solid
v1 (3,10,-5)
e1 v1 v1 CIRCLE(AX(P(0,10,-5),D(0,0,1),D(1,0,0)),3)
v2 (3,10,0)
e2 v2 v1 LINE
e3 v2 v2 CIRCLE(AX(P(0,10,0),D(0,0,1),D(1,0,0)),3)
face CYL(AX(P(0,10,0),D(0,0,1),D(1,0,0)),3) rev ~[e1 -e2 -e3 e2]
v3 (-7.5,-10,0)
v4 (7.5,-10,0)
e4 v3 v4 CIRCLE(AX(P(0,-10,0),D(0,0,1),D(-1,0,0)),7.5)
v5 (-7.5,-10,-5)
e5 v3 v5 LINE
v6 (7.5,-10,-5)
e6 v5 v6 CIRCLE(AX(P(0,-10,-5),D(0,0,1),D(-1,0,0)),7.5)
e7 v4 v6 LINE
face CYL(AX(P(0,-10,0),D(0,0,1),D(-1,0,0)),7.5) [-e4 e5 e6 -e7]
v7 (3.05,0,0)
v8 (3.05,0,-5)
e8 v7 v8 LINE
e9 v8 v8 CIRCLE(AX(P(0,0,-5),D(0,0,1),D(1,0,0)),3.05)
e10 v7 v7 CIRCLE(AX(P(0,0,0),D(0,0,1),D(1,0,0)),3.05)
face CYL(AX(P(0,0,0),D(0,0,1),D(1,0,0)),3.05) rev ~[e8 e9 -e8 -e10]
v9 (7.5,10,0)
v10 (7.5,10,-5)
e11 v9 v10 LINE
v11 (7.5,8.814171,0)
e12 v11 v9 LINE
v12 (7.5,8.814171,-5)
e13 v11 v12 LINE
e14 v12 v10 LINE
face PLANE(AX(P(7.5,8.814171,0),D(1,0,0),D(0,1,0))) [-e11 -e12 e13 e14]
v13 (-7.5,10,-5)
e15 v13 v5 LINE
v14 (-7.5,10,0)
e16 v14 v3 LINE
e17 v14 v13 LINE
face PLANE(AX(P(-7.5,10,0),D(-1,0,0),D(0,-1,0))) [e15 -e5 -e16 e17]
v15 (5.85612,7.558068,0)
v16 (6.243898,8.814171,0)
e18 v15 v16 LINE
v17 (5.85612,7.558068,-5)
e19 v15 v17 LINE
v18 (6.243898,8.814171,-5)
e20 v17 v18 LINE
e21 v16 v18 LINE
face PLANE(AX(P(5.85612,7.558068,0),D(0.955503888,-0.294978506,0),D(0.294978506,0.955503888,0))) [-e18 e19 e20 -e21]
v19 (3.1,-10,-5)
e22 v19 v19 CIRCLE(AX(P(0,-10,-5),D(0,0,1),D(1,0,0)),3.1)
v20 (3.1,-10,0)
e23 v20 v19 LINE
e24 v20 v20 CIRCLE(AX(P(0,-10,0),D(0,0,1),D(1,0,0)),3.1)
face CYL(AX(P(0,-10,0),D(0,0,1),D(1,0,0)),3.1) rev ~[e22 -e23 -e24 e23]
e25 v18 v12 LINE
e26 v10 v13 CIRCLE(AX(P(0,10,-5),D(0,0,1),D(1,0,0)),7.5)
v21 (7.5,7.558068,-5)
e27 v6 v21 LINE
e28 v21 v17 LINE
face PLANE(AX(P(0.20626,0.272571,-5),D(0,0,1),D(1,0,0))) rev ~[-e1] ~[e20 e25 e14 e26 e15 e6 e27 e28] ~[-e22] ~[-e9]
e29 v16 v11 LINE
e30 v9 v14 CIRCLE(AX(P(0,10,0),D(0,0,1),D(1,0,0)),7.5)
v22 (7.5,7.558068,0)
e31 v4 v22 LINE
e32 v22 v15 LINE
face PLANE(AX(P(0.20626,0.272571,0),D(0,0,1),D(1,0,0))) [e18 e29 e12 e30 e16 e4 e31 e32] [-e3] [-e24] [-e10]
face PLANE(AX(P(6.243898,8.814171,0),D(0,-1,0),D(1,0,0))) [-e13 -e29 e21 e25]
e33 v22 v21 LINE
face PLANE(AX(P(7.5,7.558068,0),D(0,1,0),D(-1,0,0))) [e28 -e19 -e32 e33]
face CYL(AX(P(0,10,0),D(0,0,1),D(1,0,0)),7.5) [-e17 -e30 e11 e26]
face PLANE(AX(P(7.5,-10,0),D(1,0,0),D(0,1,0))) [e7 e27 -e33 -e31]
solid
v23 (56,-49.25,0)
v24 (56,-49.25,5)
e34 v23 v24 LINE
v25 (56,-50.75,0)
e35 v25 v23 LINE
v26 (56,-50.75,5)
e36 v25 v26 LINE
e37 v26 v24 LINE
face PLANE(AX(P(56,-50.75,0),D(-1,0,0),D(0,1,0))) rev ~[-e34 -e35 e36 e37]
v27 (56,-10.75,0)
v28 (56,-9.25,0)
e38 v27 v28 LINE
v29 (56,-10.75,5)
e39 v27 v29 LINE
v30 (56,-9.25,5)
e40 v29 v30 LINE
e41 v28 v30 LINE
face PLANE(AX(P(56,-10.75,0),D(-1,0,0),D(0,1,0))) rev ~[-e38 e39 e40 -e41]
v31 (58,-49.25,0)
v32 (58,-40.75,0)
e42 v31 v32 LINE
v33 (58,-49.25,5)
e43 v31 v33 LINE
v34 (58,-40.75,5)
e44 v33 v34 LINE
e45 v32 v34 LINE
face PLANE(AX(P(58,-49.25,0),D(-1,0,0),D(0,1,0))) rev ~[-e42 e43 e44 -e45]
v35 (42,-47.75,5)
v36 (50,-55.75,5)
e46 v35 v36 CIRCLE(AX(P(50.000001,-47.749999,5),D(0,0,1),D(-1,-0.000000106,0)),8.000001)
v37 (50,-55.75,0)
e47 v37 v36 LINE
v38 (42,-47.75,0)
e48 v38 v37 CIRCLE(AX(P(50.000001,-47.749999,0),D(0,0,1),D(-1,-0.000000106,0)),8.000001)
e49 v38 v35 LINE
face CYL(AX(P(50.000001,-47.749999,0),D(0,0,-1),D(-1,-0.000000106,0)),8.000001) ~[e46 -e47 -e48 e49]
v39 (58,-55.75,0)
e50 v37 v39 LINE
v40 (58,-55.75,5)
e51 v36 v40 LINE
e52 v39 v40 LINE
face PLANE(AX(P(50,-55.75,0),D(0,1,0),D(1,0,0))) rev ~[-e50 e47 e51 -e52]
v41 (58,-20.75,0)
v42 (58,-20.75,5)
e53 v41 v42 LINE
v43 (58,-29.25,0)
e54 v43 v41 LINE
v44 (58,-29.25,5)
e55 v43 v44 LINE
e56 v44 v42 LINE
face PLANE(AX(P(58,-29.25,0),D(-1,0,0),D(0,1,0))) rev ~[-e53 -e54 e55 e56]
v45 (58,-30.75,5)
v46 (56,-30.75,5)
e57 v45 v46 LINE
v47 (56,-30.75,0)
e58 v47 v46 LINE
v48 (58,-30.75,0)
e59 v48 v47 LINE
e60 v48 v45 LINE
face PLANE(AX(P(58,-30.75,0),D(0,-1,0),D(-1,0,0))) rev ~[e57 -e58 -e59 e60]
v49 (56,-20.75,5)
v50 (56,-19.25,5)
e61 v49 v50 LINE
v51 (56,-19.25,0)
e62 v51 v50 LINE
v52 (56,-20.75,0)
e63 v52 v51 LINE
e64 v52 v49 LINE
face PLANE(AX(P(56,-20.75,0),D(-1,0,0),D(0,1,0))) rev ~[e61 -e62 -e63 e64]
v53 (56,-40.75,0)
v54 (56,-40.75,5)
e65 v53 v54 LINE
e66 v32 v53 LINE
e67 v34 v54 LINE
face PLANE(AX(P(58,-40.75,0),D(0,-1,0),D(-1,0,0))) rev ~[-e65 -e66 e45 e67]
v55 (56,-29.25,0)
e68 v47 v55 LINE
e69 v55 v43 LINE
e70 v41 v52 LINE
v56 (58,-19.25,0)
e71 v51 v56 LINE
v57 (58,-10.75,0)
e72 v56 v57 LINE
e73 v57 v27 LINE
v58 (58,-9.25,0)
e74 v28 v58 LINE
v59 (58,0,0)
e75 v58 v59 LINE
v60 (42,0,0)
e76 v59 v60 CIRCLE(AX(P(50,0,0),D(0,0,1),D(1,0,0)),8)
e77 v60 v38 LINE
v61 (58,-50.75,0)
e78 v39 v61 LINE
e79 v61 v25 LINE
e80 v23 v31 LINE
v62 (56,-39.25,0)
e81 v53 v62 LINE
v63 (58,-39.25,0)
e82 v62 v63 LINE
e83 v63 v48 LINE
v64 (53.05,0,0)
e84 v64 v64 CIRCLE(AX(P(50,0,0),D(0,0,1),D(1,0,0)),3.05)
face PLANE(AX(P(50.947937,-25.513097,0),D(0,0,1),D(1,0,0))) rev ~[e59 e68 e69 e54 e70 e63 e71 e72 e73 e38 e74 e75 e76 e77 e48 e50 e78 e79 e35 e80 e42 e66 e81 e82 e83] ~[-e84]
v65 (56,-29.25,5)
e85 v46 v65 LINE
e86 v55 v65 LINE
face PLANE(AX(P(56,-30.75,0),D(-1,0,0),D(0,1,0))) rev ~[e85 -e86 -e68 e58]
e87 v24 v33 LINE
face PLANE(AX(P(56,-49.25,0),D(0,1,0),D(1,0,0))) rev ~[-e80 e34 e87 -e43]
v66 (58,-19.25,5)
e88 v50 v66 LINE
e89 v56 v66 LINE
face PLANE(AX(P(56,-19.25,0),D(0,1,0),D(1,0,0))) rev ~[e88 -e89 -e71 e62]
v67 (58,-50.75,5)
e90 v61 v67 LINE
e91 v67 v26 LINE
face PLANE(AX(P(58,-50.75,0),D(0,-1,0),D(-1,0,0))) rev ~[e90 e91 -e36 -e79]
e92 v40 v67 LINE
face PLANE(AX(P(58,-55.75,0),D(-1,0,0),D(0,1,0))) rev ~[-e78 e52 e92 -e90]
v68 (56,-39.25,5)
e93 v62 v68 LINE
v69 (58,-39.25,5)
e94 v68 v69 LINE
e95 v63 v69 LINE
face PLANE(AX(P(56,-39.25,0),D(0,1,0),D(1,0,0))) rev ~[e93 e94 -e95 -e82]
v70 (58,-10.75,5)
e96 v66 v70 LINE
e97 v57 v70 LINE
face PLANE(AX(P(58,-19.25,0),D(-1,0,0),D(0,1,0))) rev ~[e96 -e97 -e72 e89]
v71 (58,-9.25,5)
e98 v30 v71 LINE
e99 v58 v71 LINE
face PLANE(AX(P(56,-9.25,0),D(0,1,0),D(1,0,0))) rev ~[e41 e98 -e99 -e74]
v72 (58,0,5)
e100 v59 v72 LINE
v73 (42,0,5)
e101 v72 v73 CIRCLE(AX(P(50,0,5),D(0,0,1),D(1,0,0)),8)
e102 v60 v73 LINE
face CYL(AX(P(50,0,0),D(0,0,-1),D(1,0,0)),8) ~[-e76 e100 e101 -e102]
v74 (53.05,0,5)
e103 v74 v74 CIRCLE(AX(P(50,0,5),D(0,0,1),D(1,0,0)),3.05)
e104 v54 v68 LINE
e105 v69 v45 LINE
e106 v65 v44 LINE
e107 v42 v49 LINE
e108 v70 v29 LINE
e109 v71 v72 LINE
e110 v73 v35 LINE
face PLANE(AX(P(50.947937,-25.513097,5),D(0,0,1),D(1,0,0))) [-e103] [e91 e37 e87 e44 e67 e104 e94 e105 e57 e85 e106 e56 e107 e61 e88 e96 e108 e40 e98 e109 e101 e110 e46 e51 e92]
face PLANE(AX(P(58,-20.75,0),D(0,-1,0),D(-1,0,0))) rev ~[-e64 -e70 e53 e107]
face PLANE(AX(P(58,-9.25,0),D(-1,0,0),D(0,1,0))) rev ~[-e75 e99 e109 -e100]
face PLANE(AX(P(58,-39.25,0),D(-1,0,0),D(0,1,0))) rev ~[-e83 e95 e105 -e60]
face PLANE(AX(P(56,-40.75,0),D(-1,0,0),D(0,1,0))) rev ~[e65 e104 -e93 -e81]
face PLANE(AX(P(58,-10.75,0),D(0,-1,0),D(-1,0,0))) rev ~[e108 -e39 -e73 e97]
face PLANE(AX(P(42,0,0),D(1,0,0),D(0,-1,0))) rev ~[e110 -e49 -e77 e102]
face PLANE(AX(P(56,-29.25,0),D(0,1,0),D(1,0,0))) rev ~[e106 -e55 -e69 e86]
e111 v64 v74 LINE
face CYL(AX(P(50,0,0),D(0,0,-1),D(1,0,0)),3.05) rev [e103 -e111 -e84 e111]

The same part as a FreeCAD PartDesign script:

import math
import FreeCAD as App
import Part
import Sketcher

doc = App.newDocument("Part")
body = doc.addObject("PartDesign::Body", "Body")

# Sketch on XY plane
sketch1 = doc.addObject("Sketcher::SketchObject", "Sketch")
body.addObject(sketch1)
sketch1.AttachmentSupport = (doc.XY_Plane, [""])
sketch1.MapMode = "FlatFace"
sketch1.addGeometry([
    Part.LineSegment(App.Vector(7.5, 8.8, 0), App.Vector(7.5, 10, 0)),  # 0
    Part.ArcOfCircle(Part.Circle(App.Vector(0, 10, 0), App.Vector(0, 0, 1), 7.5), math.radians(0), math.radians(180)),  # 1
    Part.LineSegment(App.Vector(-7.5, 10, 0), App.Vector(-7.5, -10, 0)),  # 2
    Part.ArcOfCircle(Part.Circle(App.Vector(0, -10, 0), App.Vector(0, 0, 1), 7.5), math.radians(180), math.radians(360)),  # 3
    Part.LineSegment(App.Vector(7.5, -10, 0), App.Vector(7.5, 7.6, 0)),  # 4
    Part.LineSegment(App.Vector(7.5, 7.6, 0), App.Vector(5.9, 7.6, 0)),  # 5
    Part.LineSegment(App.Vector(5.9, 7.6, 0), App.Vector(6.2, 8.8, 0)),  # 6
    Part.LineSegment(App.Vector(6.2, 8.8, 0), App.Vector(7.5, 8.8, 0)),  # 7
], False)
sketch1.addConstraint([
    Sketcher.Constraint("Tangent", 0, 2, 1, 1),
    Sketcher.Constraint("Tangent", 1, 2, 2, 1),
    Sketcher.Constraint("Tangent", 2, 2, 3, 1),
    Sketcher.Constraint("Tangent", 3, 2, 4, 1),
    Sketcher.Constraint("Coincident", 4, 2, 5, 1),
    Sketcher.Constraint("Coincident", 5, 2, 6, 1),
    Sketcher.Constraint("Coincident", 6, 2, 7, 1),
    Sketcher.Constraint("Coincident", 7, 2, 0, 1),
    Sketcher.Constraint("Vertical", 0),
    Sketcher.Constraint("Vertical", 2),
    Sketcher.Constraint("Vertical", 4),
    Sketcher.Constraint("Horizontal", 5),
    Sketcher.Constraint("Horizontal", 7),
    Sketcher.Constraint("Equal", 1, 3),
    Sketcher.Constraint("Symmetric", 1, 3, 3, 3, -1, 1),
    Sketcher.Constraint("Radius", 1, 7.5),
    Sketcher.Constraint("DistanceY", 2, 2, 2, 1, 20.0),
    Sketcher.Constraint("DistanceX", 5, 2, 5, 1, 1.64388),
    Sketcher.Constraint("DistanceY", 0, 1, 0, 2, 1.185829),
    Sketcher.Constraint("DistanceX", 7, 1, 7, 2, 1.256102),
    Sketcher.Constraint("DistanceY", 4, 1, 4, 2, 17.558068),
])
pad1 = doc.addObject("PartDesign::Pad", "Pad")
body.addObject(pad1)
pad1.Profile = sketch1
pad1.Length = 5
pad1.Reversed = True

# Sketch on XY plane
sketch2 = doc.addObject("Sketcher::SketchObject", "Sketch001")
body.addObject(sketch2)
sketch2.AttachmentSupport = (doc.XY_Plane, [""])
sketch2.MapMode = "FlatFace"
sketch2.addGeometry([
    Part.Circle(App.Vector(0, 0, 0), App.Vector(0, 0, 1), 3),
    Part.Circle(App.Vector(0, 10, 0), App.Vector(0, 0, 1), 3),
    Part.Circle(App.Vector(0, -10, 0), App.Vector(0, 0, 1), 3.1),
], False)
sketch2.addConstraint([
    Sketcher.Constraint("Coincident", 0, 3, -1, 1),
    Sketcher.Constraint("Symmetric", 1, 3, 2, 3, -1, 1),
    Sketcher.Constraint("PointOnObject", 1, 3, -2),
    Sketcher.Constraint("Diameter", 1, 6.0),
    Sketcher.Constraint("Diameter", 0, 6.1),
    Sketcher.Constraint("Diameter", 2, 6.2),
    Sketcher.Constraint("DistanceY", -1, 1, 1, 3, 10.0),
])
pocket1 = doc.addObject("PartDesign::Pocket", "Pocket")
body.addObject(pocket1)
pocket1.Profile = sketch2
pocket1.Length = 25
body2 = doc.addObject("PartDesign::Body", "Body001")

# Sketch on XY plane
sketch3 = doc.addObject("Sketcher::SketchObject", "Sketch002")
body2.addObject(sketch3)
sketch3.AttachmentSupport = (doc.getObject("XY_Plane001"), [""])
sketch3.MapMode = "FlatFace"
sketch3.addGeometry([
    Part.LineSegment(App.Vector(58, -9.2, 0), App.Vector(58, 0, 0)),  # 0
    Part.ArcOfCircle(Part.Circle(App.Vector(50, 0, 0), App.Vector(0, 0, 1), 8), math.radians(0), math.radians(180)),  # 1
    Part.LineSegment(App.Vector(42, 0, 0), App.Vector(42, -47.8, 0)),  # 2
    Part.ArcOfCircle(Part.Circle(App.Vector(50, -47.7, 0), App.Vector(0, 0, 1), 8), math.radians(-180), math.radians(-90)),  # 3
    Part.LineSegment(App.Vector(50, -55.8, 0), App.Vector(58, -55.8, 0)),  # 4
    Part.LineSegment(App.Vector(58, -55.8, 0), App.Vector(58, -50.8, 0)),  # 5
    Part.LineSegment(App.Vector(58, -50.8, 0), App.Vector(56, -50.8, 0)),  # 6
    Part.LineSegment(App.Vector(56, -50.8, 0), App.Vector(56, -49.2, 0)),  # 7
    Part.LineSegment(App.Vector(56, -49.2, 0), App.Vector(58, -49.2, 0)),  # 8
    Part.LineSegment(App.Vector(58, -49.2, 0), App.Vector(58, -40.8, 0)),  # 9
    Part.LineSegment(App.Vector(58, -40.8, 0), App.Vector(56, -40.8, 0)),  # 10
    Part.LineSegment(App.Vector(56, -40.8, 0), App.Vector(56, -39.2, 0)),  # 11
    Part.LineSegment(App.Vector(56, -39.2, 0), App.Vector(58, -39.2, 0)),  # 12
    Part.LineSegment(App.Vector(58, -39.2, 0), App.Vector(58, -30.8, 0)),  # 13
    Part.LineSegment(App.Vector(58, -30.8, 0), App.Vector(56, -30.8, 0)),  # 14
    Part.LineSegment(App.Vector(56, -30.8, 0), App.Vector(56, -29.2, 0)),  # 15
    Part.LineSegment(App.Vector(56, -29.2, 0), App.Vector(58, -29.2, 0)),  # 16
    Part.LineSegment(App.Vector(58, -29.2, 0), App.Vector(58, -20.8, 0)),  # 17
    Part.LineSegment(App.Vector(58, -20.8, 0), App.Vector(56, -20.8, 0)),  # 18
    Part.LineSegment(App.Vector(56, -20.8, 0), App.Vector(56, -19.2, 0)),  # 19
    Part.LineSegment(App.Vector(56, -19.2, 0), App.Vector(58, -19.2, 0)),  # 20
    Part.LineSegment(App.Vector(58, -19.2, 0), App.Vector(58, -10.8, 0)),  # 21
    Part.LineSegment(App.Vector(58, -10.8, 0), App.Vector(56, -10.8, 0)),  # 22
    Part.LineSegment(App.Vector(56, -10.8, 0), App.Vector(56, -9.2, 0)),  # 23
    Part.LineSegment(App.Vector(56, -9.2, 0), App.Vector(58, -9.2, 0)),  # 24
    Part.Circle(App.Vector(50, 0, 0), App.Vector(0, 0, 1), 3),  # 25
], False)
sketch3.addConstraint([
    Sketcher.Constraint("Tangent", 0, 2, 1, 1),
    Sketcher.Constraint("Tangent", 1, 2, 2, 1),
    Sketcher.Constraint("Tangent", 2, 2, 3, 1),
    Sketcher.Constraint("Tangent", 3, 2, 4, 1),
    Sketcher.Constraint("Coincident", 4, 2, 5, 1),
    Sketcher.Constraint("Coincident", 5, 2, 6, 1),
    Sketcher.Constraint("Coincident", 6, 2, 7, 1),
    Sketcher.Constraint("Coincident", 7, 2, 8, 1),
    Sketcher.Constraint("Coincident", 8, 2, 9, 1),
    Sketcher.Constraint("Coincident", 9, 2, 10, 1),
    Sketcher.Constraint("Coincident", 10, 2, 11, 1),
    Sketcher.Constraint("Coincident", 11, 2, 12, 1),
    Sketcher.Constraint("Coincident", 12, 2, 13, 1),
    Sketcher.Constraint("Coincident", 13, 2, 14, 1),
    Sketcher.Constraint("Coincident", 14, 2, 15, 1),
    Sketcher.Constraint("Coincident", 15, 2, 16, 1),
    Sketcher.Constraint("Coincident", 16, 2, 17, 1),
    Sketcher.Constraint("Coincident", 17, 2, 18, 1),
    Sketcher.Constraint("Coincident", 18, 2, 19, 1),
    Sketcher.Constraint("Coincident", 19, 2, 20, 1),
    Sketcher.Constraint("Coincident", 20, 2, 21, 1),
    Sketcher.Constraint("Coincident", 21, 2, 22, 1),
    Sketcher.Constraint("Coincident", 22, 2, 23, 1),
    Sketcher.Constraint("Coincident", 23, 2, 24, 1),
    Sketcher.Constraint("Coincident", 24, 2, 0, 1),
    Sketcher.Constraint("Vertical", 0),
    Sketcher.Constraint("Vertical", 2),
    Sketcher.Constraint("Horizontal", 4),
    Sketcher.Constraint("Vertical", 5),
    Sketcher.Constraint("Horizontal", 6),
    Sketcher.Constraint("Vertical", 7),
    Sketcher.Constraint("Horizontal", 8),
    Sketcher.Constraint("Vertical", 9),
    Sketcher.Constraint("Horizontal", 10),
    Sketcher.Constraint("Vertical", 11),
    Sketcher.Constraint("Horizontal", 12),
    Sketcher.Constraint("Vertical", 13),
    Sketcher.Constraint("Horizontal", 14),
    Sketcher.Constraint("Vertical", 15),
    Sketcher.Constraint("Horizontal", 16),
    Sketcher.Constraint("Vertical", 17),
    Sketcher.Constraint("Horizontal", 18),
    Sketcher.Constraint("Vertical", 19),
    Sketcher.Constraint("Horizontal", 20),
    Sketcher.Constraint("Vertical", 21),
    Sketcher.Constraint("Horizontal", 22),
    Sketcher.Constraint("Vertical", 23),
    Sketcher.Constraint("Horizontal", 24),
    Sketcher.Constraint("Coincident", 25, 3, 1, 3),
    Sketcher.Constraint("Equal", 1, 3),
    Sketcher.Constraint("PointOnObject", 1, 3, -1),
    Sketcher.Constraint("Vertical", 0, 2, 4, 2),
    Sketcher.Constraint("Vertical", 5, 2, 8, 2),
    Sketcher.Constraint("Vertical", 7, 2, 10, 2),
    Sketcher.Constraint("Vertical", 9, 2, 12, 2),
    Sketcher.Constraint("Vertical", 11, 2, 14, 2),
    Sketcher.Constraint("Vertical", 13, 2, 16, 2),
    Sketcher.Constraint("Vertical", 15, 2, 18, 2),
    Sketcher.Constraint("Vertical", 17, 2, 20, 2),
    Sketcher.Constraint("Vertical", 19, 2, 22, 2),
    Sketcher.Constraint("Equal", 7, 11),
    Sketcher.Constraint("Equal", 9, 13),
    Sketcher.Constraint("Equal", 11, 15),
    Sketcher.Constraint("Equal", 13, 17),
    Sketcher.Constraint("Equal", 15, 19),
    Sketcher.Constraint("Equal", 17, 21),
    Sketcher.Constraint("Equal", 19, 23),
    Sketcher.Constraint("Radius", 1, 8.0),
    Sketcher.Constraint("Diameter", 25, 6.1),
    Sketcher.Constraint("DistanceX", 6, 2, 6, 1, 2.0),
    Sketcher.Constraint("DistanceY", 5, 1, 5, 2, 5.0),
    Sketcher.Constraint("DistanceY", 7, 1, 7, 2, 1.5),
    Sketcher.Constraint("DistanceY", 9, 1, 9, 2, 8.5),
    Sketcher.Constraint("DistanceX", -1, 1, 1, 3, 50.0),
    Sketcher.Constraint("DistanceY", 0, 1, 0, 2, 9.25),
])
pad2 = doc.addObject("PartDesign::Pad", "Pad001")
body2.addObject(pad2)
pad2.Profile = sketch3
pad2.Length = 5

doc.recompute()
